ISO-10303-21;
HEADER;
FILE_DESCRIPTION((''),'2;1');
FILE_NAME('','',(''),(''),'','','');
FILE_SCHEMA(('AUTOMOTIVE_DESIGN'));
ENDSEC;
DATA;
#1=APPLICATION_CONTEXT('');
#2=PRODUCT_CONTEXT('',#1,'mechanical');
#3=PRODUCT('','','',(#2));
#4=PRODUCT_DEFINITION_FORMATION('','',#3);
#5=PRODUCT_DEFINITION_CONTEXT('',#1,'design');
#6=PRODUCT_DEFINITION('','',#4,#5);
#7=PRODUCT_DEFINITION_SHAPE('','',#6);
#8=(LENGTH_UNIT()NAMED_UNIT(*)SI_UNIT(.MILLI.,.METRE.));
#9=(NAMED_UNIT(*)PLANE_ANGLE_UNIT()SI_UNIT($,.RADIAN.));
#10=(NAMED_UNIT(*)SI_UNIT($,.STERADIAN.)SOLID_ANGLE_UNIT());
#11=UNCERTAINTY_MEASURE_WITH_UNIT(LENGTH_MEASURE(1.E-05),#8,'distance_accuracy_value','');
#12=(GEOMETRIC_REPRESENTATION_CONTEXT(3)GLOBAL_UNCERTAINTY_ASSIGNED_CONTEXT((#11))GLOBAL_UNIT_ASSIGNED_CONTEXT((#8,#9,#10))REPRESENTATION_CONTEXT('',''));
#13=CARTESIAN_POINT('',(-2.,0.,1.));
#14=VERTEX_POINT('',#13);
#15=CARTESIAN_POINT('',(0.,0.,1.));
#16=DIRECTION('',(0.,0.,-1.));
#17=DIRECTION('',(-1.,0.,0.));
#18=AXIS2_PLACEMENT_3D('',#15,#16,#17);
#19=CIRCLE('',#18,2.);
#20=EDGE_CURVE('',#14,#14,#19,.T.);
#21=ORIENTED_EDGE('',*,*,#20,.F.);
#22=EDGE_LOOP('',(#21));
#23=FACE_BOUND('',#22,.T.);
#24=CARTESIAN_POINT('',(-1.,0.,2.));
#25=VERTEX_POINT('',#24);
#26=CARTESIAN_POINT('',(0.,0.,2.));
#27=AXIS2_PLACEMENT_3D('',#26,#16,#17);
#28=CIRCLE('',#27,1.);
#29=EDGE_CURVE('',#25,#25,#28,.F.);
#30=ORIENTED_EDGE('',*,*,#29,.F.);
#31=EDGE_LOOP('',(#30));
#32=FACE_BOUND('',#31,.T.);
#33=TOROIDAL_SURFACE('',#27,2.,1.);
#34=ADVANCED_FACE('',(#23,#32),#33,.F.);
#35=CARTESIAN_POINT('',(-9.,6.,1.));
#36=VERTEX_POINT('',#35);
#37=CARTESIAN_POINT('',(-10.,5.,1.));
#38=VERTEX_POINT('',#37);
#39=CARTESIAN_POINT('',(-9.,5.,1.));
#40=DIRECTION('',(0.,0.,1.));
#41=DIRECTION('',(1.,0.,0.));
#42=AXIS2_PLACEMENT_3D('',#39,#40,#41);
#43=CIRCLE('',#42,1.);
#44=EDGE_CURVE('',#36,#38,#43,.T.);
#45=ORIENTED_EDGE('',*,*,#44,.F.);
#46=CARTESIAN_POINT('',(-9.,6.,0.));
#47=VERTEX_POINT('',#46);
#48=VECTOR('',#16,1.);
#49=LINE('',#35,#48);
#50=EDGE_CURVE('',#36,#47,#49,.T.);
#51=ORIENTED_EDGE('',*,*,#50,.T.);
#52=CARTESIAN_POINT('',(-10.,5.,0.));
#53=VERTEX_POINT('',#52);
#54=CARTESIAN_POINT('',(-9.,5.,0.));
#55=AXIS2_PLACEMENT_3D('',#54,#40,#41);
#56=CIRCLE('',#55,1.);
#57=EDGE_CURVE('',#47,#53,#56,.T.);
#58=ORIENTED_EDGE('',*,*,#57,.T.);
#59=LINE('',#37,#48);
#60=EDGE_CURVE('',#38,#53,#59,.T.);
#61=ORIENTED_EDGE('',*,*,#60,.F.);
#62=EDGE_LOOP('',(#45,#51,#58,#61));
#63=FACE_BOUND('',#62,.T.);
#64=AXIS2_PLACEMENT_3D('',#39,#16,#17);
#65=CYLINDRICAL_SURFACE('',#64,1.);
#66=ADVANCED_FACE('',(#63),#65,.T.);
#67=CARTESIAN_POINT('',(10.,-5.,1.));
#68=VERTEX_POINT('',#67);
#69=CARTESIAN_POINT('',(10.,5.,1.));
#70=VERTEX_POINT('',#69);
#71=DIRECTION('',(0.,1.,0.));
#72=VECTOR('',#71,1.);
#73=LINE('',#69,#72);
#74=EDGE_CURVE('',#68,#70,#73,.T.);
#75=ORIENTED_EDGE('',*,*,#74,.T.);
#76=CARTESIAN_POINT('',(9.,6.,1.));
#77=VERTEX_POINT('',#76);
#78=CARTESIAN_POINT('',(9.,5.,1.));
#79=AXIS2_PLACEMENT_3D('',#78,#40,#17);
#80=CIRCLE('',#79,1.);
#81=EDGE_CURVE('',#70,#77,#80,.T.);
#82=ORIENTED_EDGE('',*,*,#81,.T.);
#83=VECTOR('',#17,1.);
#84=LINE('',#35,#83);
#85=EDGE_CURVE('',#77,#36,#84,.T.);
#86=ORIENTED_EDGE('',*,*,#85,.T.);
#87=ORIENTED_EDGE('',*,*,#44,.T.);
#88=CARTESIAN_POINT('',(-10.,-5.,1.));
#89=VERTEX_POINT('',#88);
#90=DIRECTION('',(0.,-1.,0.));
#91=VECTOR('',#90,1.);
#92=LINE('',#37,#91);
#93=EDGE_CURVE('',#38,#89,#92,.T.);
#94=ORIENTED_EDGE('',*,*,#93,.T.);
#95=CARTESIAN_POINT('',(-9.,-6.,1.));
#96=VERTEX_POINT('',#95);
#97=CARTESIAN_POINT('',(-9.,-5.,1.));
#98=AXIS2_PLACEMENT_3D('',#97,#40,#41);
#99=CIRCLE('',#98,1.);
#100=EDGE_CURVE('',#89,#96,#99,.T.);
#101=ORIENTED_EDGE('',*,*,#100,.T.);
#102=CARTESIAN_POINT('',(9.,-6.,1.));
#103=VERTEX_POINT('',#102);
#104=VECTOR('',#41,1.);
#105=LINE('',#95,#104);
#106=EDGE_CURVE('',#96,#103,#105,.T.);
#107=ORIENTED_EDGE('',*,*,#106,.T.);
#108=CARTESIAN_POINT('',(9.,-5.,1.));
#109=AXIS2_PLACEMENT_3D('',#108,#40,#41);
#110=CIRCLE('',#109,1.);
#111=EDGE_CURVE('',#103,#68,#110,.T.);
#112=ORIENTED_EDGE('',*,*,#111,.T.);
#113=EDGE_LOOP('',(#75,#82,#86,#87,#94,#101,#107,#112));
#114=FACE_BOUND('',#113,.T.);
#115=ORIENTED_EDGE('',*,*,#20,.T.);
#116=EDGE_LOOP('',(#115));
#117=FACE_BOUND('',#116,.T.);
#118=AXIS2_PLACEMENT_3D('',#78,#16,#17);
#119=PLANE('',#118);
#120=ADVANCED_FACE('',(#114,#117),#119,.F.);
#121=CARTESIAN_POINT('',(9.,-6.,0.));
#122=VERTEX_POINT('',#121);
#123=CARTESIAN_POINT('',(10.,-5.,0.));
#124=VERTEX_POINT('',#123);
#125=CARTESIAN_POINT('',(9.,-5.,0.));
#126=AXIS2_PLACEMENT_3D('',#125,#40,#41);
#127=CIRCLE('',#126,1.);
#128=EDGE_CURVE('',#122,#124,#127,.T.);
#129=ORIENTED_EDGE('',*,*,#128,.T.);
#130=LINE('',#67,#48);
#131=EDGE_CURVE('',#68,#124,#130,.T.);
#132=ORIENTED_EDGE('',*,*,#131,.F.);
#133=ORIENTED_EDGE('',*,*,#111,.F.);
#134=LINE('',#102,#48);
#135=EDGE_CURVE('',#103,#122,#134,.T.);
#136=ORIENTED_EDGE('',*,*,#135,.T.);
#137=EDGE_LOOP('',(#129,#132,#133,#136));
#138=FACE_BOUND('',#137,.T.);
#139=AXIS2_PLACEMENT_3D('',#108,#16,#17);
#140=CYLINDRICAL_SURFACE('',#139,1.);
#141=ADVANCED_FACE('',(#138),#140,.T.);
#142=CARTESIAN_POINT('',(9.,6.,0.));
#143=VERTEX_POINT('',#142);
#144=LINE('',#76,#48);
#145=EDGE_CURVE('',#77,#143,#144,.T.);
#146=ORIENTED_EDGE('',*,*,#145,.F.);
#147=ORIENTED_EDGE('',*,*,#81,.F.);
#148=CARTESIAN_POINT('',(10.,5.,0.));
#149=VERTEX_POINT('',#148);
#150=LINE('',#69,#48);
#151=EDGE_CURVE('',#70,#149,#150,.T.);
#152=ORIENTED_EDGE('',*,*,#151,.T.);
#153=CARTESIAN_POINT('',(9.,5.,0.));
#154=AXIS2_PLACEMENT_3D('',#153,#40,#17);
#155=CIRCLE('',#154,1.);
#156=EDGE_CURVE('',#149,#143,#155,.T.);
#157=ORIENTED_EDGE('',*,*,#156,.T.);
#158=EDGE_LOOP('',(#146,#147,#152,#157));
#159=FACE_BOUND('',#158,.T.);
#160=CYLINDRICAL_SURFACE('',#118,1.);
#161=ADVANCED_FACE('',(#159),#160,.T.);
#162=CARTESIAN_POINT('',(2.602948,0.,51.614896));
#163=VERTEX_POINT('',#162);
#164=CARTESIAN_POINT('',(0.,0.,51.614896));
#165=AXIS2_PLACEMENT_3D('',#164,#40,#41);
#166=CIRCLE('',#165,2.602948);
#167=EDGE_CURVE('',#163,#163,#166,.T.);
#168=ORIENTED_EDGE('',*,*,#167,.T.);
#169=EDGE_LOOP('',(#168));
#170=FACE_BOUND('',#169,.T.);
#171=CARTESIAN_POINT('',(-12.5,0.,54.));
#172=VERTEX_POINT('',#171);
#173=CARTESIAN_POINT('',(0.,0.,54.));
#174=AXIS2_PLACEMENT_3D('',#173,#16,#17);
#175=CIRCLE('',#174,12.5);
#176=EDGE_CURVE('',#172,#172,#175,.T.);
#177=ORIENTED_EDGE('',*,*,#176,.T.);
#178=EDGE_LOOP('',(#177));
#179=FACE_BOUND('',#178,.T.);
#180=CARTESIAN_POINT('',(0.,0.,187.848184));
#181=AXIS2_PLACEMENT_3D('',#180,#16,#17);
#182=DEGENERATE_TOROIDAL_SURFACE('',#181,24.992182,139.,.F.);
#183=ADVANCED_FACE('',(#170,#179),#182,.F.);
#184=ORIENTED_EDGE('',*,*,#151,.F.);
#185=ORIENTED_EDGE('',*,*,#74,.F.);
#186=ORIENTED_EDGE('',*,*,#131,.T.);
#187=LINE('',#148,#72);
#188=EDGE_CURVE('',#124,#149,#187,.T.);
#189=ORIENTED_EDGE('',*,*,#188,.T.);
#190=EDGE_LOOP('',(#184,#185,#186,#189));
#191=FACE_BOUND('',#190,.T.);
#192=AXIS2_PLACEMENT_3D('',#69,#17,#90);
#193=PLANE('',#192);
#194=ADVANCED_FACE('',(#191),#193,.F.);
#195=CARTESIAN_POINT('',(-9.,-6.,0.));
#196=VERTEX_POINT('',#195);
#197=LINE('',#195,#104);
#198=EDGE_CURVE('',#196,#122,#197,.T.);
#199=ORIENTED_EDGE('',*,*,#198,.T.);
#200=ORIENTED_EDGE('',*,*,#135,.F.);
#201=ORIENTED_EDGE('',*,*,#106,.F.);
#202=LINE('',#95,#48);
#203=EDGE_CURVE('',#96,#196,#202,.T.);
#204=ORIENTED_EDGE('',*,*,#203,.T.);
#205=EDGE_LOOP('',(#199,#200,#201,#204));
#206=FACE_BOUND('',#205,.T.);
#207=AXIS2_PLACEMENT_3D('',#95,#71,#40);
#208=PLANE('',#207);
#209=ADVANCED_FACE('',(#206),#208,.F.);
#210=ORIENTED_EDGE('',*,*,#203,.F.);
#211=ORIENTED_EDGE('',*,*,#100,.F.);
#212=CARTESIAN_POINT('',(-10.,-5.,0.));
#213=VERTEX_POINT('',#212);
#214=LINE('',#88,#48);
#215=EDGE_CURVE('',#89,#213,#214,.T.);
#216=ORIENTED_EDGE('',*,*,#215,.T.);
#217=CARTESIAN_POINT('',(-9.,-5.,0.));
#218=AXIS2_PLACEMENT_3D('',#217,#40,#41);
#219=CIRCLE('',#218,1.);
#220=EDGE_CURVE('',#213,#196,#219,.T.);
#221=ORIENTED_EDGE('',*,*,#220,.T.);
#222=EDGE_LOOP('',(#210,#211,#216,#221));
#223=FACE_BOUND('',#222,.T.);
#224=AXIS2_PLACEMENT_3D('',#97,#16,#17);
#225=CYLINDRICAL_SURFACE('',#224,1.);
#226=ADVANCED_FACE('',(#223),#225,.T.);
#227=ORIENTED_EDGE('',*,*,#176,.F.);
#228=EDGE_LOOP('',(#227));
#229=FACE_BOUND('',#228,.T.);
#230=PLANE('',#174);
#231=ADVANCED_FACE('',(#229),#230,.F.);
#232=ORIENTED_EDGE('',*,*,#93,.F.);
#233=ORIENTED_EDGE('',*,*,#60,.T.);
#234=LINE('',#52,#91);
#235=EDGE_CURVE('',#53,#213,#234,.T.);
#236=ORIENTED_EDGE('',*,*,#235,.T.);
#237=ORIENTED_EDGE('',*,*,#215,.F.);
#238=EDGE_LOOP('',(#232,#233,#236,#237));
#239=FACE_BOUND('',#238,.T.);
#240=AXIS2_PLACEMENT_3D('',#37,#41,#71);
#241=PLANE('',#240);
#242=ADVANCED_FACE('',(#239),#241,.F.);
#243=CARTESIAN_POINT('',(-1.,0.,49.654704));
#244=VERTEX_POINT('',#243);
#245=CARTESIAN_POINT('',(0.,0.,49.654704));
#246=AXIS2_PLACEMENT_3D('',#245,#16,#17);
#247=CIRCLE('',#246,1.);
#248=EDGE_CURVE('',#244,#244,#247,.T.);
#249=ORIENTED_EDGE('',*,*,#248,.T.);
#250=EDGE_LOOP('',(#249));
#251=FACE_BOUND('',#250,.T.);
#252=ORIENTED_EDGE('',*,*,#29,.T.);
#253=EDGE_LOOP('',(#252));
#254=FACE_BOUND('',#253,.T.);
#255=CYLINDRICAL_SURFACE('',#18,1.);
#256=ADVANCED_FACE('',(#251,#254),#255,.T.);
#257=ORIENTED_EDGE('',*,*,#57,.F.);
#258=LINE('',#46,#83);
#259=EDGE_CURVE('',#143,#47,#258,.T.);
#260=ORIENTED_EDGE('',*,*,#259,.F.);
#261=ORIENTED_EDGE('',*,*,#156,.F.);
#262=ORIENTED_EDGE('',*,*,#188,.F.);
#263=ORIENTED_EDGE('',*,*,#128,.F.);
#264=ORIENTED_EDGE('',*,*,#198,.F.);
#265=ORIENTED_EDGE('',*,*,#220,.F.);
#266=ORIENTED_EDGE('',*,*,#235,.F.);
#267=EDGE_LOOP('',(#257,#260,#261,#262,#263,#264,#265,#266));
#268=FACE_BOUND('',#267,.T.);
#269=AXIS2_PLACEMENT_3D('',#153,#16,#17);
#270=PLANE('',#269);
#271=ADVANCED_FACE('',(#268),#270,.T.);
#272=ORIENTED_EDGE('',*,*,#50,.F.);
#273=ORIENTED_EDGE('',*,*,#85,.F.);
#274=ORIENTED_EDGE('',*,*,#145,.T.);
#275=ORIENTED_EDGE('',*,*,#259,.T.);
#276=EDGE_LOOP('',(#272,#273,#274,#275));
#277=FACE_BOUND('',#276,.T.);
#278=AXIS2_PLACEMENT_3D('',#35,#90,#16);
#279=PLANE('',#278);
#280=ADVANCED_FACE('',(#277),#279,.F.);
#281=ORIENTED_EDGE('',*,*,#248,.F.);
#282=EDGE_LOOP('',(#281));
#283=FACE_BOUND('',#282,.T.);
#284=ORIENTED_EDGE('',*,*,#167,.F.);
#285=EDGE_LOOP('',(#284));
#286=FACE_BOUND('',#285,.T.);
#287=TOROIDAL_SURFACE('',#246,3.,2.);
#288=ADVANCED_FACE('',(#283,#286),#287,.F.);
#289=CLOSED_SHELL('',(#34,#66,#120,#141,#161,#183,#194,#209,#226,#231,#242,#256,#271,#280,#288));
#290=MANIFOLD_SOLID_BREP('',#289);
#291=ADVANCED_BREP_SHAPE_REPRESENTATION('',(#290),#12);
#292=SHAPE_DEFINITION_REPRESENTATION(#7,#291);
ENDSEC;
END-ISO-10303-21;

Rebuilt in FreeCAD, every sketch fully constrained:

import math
import FreeCAD as App
import Part
import Sketcher
from FreeCAD import Vector
Q = App.Units.Quantity


def edges_at(feature, points):
    """Names of the edges that pass closest to the given points."""
    edges = feature.Shape.Edges
    near = lambda p: min(range(len(edges)), key=lambda i: edges[i].distToShape(Part.Vertex(*p))[0])
    return sorted({f"Edge{near(p) + 1}" for p in points})

doc = App.newDocument("Part")
body = doc.addObject("PartDesign::Body", "Body")

# Sketch on XY plane
sketch1 = doc.addObject("Sketcher::SketchObject", "Sketch")
body.addObject(sketch1)
sketch1.AttachmentSupport = (doc.XY_Plane, [""])
sketch1.MapMode = "FlatFace"
sketch1.addGeometry([
    Part.LineSegment(Vector(9, 6, 0), Vector(-9, 6, 0)),  # 0
    Part.ArcOfCircle(Part.Circle(Vector(-9, 5, 0), Vector(0, 0, 1), 1), math.radians(90), math.radians(180)),  # 1
    Part.LineSegment(Vector(-10, 5, 0), Vector(-10, -5, 0)),  # 2
    Part.ArcOfCircle(Part.Circle(Vector(-9, -5, 0), Vector(0, 0, 1), 1), math.radians(-180), math.radians(-90)),  # 3
    Part.LineSegment(Vector(-9, -6, 0), Vector(9, -6, 0)),  # 4
    Part.ArcOfCircle(Part.Circle(Vector(9, -5, 0), Vector(0, 0, 1), 1), math.radians(-90), math.radians(0)),  # 5
    Part.LineSegment(Vector(10, -5, 0), Vector(10, 5, 0)),  # 6
    Part.ArcOfCircle(Part.Circle(Vector(9, 5, 0), Vector(0, 0, 1), 1), math.radians(0), math.radians(90)),  # 7
], False)
sketch1.addConstraint([
    Sketcher.Constraint("Tangent", 0, 2, 1, 1),
    Sketcher.Constraint("Tangent", 1, 2, 2, 1),
    Sketcher.Constraint("Tangent", 2, 2, 3, 1),
    Sketcher.Constraint("Tangent", 3, 2, 4, 1),
    Sketcher.Constraint("Tangent", 4, 2, 5, 1),
    Sketcher.Constraint("Tangent", 5, 2, 6, 1),
    Sketcher.Constraint("Tangent", 6, 2, 7, 1),
    Sketcher.Constraint("Tangent", 7, 2, 0, 1),
    Sketcher.Constraint("Horizontal", 0),
    Sketcher.Constraint("Vertical", 2),
    Sketcher.Constraint("Horizontal", 4),
    Sketcher.Constraint("Vertical", 6),
    Sketcher.Constraint("Equal", 1, 3),
    Sketcher.Constraint("Equal", 3, 5),
    Sketcher.Constraint("Equal", 5, 7),
    Sketcher.Constraint("Symmetric", 1, 3, 5, 3, -1, 1),
    Sketcher.Constraint("Radius", 1, Q("1 mm")),
    Sketcher.Constraint("DistanceX", 0, 2, 0, 1, Q("18 mm")),
    Sketcher.Constraint("DistanceY", 2, 2, 2, 1, Q("10 mm")),
])
pad1 = doc.addObject("PartDesign::Pad", "Pad")
body.addObject(pad1)
pad1.Profile = sketch1
pad1.Length = 1

# Sketch on XZ plane
sketch2 = doc.addObject("Sketcher::SketchObject", "Sketch001")
body.addObject(sketch2)
sketch2.AttachmentSupport = (doc.XZ_Plane, [""])
sketch2.MapMode = "FlatFace"
sketch2.addGeometry([
    Part.LineSegment(Vector(0, 1, 0), Vector(0, 54, 0)),  # 0
    Part.LineSegment(Vector(0, 54, 0), Vector(12.5, 54, 0)),  # 1
    Part.ArcOfCircle(Part.Circle(Vector(-25, 187.8, 0), Vector(0, 0, 1), 139), math.radians(-79.22), math.radians(-74.35)),  # 2
    Part.LineSegment(Vector(1, 51.3, 0), Vector(1, 1, 0)),  # 3
    Part.LineSegment(Vector(1, 1, 0), Vector(0, 1, 0)),  # 4
], False)
sketch2.addConstraint([
    Sketcher.Constraint("Coincident", 0, 2, 1, 1),
    Sketcher.Constraint("Coincident", 1, 2, 2, 2),
    Sketcher.Constraint("Coincident", 2, 1, 3, 1),
    Sketcher.Constraint("Coincident", 3, 2, 4, 1),
    Sketcher.Constraint("Coincident", 4, 2, 0, 1),
    Sketcher.Constraint("Vertical", 0),
    Sketcher.Constraint("Horizontal", 1),
    Sketcher.Constraint("Vertical", 3),
    Sketcher.Constraint("Horizontal", 4),
    Sketcher.Constraint("PointOnObject", 0, 2, -2),
    Sketcher.Constraint("Radius", 2, Q("139 mm")),
    Sketcher.Constraint("DistanceX", 4, 2, 4, 1, Q("1 mm")),
    Sketcher.Constraint("DistanceY", 0, 1, 0, 2, Q("53 mm")),
    Sketcher.Constraint("DistanceX", 1, 1, 1, 2, Q("12.5 mm")),
    Sketcher.Constraint("DistanceY", 3, 2, 3, 1, Q("50.3 mm")),
    Sketcher.Constraint("DistanceY", -1, 1, 0, 2, Q("54 mm")),
])
revolution = doc.addObject("PartDesign::Revolution", "Revolution")
body.addObject(revolution)
revolution.Profile = sketch2
revolution.ReferenceAxis = (sketch2, ["V_Axis"])
revolution.Angle = 360
doc.recompute()

fillet = doc.addObject("PartDesign::Fillet", "Fillet")
body.addObject(fillet)
fillet.Base = (revolution, edges_at(revolution, [(-1, 0, 51.3)]))
fillet.Radius = 2
doc.recompute()

fillet2 = doc.addObject("PartDesign::Fillet", "Fillet001")
body.addObject(fillet2)
fillet2.Base = (fillet, edges_at(fillet, [(-1, 0, 1)]))
fillet2.Radius = 1

doc.recompute()
